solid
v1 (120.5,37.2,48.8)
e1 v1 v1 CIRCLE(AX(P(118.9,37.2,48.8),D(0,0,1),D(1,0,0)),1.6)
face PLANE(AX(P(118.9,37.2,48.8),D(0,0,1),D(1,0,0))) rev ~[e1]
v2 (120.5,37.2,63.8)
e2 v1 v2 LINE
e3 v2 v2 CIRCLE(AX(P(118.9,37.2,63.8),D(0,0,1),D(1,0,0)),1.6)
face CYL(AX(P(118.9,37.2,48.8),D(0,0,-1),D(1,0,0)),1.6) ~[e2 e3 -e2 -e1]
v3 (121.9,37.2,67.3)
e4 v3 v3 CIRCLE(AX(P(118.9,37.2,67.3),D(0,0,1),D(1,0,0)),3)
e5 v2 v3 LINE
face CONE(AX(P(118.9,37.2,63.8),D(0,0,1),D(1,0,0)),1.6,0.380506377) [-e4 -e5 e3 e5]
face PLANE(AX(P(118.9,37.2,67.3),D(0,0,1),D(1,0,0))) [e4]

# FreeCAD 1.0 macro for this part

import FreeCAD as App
import Part
import Sketcher
from FreeCAD import Vector


def add_polygon(sketch, points):
    """Adds a closed chain of lines whose ends are joined by coincident constraints."""
    first, n = sketch.GeometryCount, len(points)
    for a, b in zip(points, points[1:] + points[:1]):
        sketch.addGeometry(Part.LineSegment(App.Vector(*a, 0), App.Vector(*b, 0)), False)
    for i in range(n):
        sketch.addConstraint(Sketcher.Constraint("Coincident", first + i, 2, first + (i + 1) % n, 1))

doc = App.newDocument("Part")
body = doc.addObject("PartDesign::Body", "Body")

# Sketch on XY plane
sketch1 = body.newObject("Sketcher::SketchObject", "Sketch")
sketch1.AttachmentSupport = (doc.getObject("XY_Plane"), [""])
sketch1.MapMode = "FlatFace"
sketch1.addGeometry(Part.Circle(Vector(0, 0, 0), Vector(0, 0, 1), 1.6), False)
sketch1.addConstraint([
    Sketcher.Constraint("Coincident", 0, 3, -1, 1),
    Sketcher.Constraint("Diameter", 0, 3.2),
])
pad1 = body.newObject("PartDesign::Pad", "Pad")
pad1.Profile = sketch1
pad1.Length = 15
body2 = doc.addObject("PartDesign::Body", "Body001")

# Sketch on XZ plane
sketch2 = body2.newObject("Sketcher::SketchObject", "Sketch001")
sketch2.AttachmentSupport = (doc.getObject("XZ_Plane001"), [""])
sketch2.MapMode = "FlatFace"
add_polygon(sketch2, [(0, 15), (1.6, 15), (3, 18.5), (0, 18.5)])  # lines 0-3
sketch2.addConstraint([
    Sketcher.Constraint("Horizontal", 0),
    Sketcher.Constraint("Horizontal", 2),
    Sketcher.Constraint("Vertical", 3),
    Sketcher.Constraint("PointOnObject", 2, 2, -2),
    Sketcher.Constraint("DistanceX", 2, 2, 2, 1, 3.0),
    Sketcher.Constraint("DistanceX", 0, 1, 0, 2, 1.6),
    Sketcher.Constraint("DistanceY", 3, 2, 3, 1, 3.5),
    Sketcher.Constraint("DistanceY", -1, 1, 0, 2, 15.0),
])
revolution = body2.newObject("PartDesign::Revolution", "Revolution")
revolution.Profile = sketch2
revolution.ReferenceAxis = (sketch2, ["V_Axis"])
revolution.Angle = 360
doc.recompute()

boolean = body2.newObject("PartDesign::Boolean", "Boolean")
boolean.Type = "Fuse"
boolean.addObjects([body])
body3 = doc.addObject("PartDesign::Body", "Body002")
doc.recompute()

body2.Placement = App.Placement(Vector(118.9, 37.2, 48.8), App.Rotation(Vector(0, 0, 1), 0))
boolean2 = body3.newObject("PartDesign::Boolean", "Boolean001")
boolean2.Type = "Fuse"
boolean2.addObjects([body2])

doc.recompute()
